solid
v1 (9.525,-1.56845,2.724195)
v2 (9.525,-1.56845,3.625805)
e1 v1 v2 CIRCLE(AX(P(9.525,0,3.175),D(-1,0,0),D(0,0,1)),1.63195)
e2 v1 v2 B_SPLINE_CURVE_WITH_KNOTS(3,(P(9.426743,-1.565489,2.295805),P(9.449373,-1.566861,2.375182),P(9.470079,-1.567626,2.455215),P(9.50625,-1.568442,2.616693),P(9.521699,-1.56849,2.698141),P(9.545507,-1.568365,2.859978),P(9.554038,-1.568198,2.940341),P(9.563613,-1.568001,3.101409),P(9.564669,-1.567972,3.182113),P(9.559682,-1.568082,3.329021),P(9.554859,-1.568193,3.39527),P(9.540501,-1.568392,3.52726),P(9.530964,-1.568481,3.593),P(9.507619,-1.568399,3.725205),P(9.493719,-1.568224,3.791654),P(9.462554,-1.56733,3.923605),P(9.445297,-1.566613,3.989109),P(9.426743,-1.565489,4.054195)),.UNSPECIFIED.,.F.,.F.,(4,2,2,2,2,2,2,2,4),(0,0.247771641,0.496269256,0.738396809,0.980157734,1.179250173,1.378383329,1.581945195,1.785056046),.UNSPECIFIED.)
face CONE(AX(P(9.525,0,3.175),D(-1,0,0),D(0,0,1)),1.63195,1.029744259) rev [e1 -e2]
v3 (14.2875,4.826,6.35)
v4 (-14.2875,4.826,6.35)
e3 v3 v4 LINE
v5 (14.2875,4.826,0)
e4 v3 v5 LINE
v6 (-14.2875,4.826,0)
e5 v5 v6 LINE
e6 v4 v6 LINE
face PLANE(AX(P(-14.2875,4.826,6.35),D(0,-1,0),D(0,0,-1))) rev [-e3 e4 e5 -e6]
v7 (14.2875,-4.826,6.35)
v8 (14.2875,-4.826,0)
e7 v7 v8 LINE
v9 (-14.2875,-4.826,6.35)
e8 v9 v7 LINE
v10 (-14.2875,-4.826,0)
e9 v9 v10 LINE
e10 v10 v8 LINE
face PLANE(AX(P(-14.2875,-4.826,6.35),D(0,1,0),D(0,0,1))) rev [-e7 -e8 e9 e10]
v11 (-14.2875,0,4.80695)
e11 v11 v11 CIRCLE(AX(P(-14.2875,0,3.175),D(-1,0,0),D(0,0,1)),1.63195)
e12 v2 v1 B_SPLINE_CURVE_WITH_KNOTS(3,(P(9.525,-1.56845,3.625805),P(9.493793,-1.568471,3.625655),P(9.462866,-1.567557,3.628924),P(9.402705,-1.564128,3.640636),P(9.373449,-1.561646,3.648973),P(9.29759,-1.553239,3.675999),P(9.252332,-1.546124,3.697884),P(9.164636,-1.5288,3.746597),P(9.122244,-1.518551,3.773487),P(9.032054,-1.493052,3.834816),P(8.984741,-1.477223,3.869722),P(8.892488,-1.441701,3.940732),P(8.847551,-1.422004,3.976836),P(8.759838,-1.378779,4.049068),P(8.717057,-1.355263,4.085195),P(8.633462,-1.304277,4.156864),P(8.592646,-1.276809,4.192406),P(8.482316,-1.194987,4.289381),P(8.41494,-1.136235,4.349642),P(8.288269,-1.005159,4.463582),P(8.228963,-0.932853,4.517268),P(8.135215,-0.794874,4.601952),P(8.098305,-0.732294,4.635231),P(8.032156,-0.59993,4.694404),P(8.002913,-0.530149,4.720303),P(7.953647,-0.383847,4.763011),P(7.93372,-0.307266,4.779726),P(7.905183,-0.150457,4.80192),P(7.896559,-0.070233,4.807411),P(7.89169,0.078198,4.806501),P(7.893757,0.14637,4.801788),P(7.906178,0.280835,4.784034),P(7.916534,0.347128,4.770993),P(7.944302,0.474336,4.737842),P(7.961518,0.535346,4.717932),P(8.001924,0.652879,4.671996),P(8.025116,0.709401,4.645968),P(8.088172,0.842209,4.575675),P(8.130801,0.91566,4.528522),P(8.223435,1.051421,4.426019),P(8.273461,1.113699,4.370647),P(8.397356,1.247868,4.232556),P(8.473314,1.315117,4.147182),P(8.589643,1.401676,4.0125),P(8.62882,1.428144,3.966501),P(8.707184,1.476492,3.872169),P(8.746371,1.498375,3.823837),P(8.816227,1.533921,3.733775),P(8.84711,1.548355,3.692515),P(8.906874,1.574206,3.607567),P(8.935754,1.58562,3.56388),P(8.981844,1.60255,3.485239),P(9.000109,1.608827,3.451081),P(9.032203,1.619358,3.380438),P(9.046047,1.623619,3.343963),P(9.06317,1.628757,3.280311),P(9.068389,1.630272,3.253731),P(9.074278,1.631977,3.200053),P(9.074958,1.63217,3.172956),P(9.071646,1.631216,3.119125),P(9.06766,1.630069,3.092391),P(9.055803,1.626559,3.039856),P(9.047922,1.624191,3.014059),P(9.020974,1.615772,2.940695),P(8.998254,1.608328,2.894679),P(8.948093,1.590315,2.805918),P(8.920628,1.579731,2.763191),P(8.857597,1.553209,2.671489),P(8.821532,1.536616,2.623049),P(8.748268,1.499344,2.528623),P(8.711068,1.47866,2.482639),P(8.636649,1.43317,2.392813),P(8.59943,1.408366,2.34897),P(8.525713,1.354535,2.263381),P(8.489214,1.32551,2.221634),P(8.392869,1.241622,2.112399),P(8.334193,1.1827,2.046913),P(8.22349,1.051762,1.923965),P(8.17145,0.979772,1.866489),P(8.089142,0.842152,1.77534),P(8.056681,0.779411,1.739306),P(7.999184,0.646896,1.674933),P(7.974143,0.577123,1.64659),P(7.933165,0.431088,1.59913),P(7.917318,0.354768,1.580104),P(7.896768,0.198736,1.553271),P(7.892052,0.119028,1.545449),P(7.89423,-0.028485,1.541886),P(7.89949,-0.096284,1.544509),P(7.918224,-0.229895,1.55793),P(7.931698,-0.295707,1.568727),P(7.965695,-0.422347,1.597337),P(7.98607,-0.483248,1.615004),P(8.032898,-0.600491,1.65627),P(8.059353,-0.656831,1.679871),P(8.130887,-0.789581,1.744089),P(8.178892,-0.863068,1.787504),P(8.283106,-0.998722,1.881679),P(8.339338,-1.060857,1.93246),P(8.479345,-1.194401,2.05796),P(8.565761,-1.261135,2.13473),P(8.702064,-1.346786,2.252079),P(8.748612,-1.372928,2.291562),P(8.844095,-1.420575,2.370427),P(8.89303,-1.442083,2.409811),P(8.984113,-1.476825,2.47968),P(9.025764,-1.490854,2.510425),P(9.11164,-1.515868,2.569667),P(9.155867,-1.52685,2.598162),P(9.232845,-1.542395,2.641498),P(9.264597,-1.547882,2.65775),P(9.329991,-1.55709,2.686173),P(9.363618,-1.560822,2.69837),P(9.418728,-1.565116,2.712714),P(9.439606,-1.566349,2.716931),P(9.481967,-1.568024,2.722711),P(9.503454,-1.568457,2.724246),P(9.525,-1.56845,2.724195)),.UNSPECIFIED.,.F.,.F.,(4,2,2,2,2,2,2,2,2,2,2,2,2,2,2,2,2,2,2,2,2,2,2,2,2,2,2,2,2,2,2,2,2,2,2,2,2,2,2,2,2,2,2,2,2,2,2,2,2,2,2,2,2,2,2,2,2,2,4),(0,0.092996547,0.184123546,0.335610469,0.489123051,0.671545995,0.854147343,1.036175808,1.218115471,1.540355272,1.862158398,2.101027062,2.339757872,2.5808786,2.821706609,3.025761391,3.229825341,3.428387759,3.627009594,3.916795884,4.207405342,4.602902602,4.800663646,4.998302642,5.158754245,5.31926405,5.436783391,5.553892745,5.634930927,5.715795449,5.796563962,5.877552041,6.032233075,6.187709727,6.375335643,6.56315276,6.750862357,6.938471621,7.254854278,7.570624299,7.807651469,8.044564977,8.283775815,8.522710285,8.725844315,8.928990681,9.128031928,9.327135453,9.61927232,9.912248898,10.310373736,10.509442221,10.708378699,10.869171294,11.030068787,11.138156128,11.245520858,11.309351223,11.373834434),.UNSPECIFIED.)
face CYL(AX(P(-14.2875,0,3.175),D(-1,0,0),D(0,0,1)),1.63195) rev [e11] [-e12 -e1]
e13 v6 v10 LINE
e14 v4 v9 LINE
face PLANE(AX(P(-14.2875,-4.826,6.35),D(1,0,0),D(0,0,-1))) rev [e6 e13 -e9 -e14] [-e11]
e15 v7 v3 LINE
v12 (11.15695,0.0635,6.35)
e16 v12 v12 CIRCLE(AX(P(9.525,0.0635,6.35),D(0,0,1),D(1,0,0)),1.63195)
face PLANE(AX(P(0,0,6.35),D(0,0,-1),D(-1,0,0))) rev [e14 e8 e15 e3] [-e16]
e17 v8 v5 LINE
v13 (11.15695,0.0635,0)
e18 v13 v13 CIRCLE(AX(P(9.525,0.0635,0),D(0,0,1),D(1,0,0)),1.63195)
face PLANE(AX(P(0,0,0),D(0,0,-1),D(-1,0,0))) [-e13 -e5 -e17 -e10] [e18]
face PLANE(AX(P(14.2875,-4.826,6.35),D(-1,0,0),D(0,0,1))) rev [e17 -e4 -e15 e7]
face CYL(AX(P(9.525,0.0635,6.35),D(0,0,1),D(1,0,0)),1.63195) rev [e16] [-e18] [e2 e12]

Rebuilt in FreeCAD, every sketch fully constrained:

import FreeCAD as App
import Part
import Sketcher
from FreeCAD import Vector
Q = App.Units.Quantity


def add_polygon(sketch, points):
    """Adds a closed chain of lines whose ends are joined by coincident constraints."""
    first, n = sketch.GeometryCount, len(points)
    for a, b in zip(points, points[1:] + points[:1]):
        sketch.addGeometry(Part.LineSegment(App.Vector(*a, 0), App.Vector(*b, 0)), False)
    for i in range(n):
        sketch.addConstraint(Sketcher.Constraint("Coincident", first + i, 2, first + (i + 1) % n, 1))

doc = App.newDocument("Part")
body = doc.addObject("PartDesign::Body", "Body")

# Sketch on XY plane
sketch1 = body.newObject("Sketcher::SketchObject", "Sketch")
sketch1.AttachmentSupport = (doc.getObject("XY_Plane"), [""])
sketch1.MapMode = "FlatFace"
add_polygon(sketch1, [(-14.2875, 4.826), (-14.2875, -4.826), (14.2875, -4.826), (14.2875, 4.826)])  # lines 0-3
sketch1.addConstraint([
    Sketcher.Constraint("Vertical", 0),
    Sketcher.Constraint("Horizontal", 1),
    Sketcher.Constraint("Vertical", 2),
    Sketcher.Constraint("Horizontal", 3),
    Sketcher.Constraint("Symmetric", 0, 2, 2, 2, -1, 1),
    Sketcher.Constraint("DistanceY", 0, 2, 0, 1, Q("0.38 in")),
    Sketcher.Constraint("DistanceX", 1, 1, 1, 2, Q("1.125 in")),
])
pad1 = body.newObject("PartDesign::Pad", "Pad")
pad1.Profile = sketch1
pad1.Length = Q("0.25 in")

# Sketch on XY plane
sketch2 = body.newObject("Sketcher::SketchObject", "Sketch001")
sketch2.AttachmentSupport = (doc.getObject("XY_Plane"), [""])
sketch2.MapMode = "FlatFace"
sketch2.AttachmentOffset = App.Placement(Vector(0, 0, 0.25 * 25.4), App.Rotation())
sketch2.addGeometry(Part.Circle(Vector(9.525, 0.0635, 0), Vector(0, 0, 1), 1.63195), False)
sketch2.addConstraint([
    Sketcher.Constraint("Diameter", 0, Q("0.1285 in")),
    Sketcher.Constraint("DistanceX", -1, 1, 0, 3, Q("0.375 in")),
    Sketcher.Constraint("DistanceY", -1, 1, 0, 3, Q("0.0025 in")),
])
doc.recompute()
hole = body.newObject("PartDesign::Hole", "Hole")
hole.Profile = sketch2
hole.ThreadType = "None"
hole.Diameter = Q("0.1285 in")
hole.DepthType = "ThroughAll"

# Sketch on YZ plane
sketch3 = body.newObject("Sketcher::SketchObject", "Sketch002")
sketch3.AttachmentSupport = (doc.getObject("YZ_Plane"), [""])
sketch3.MapMode = "FlatFace"
sketch3.AttachmentOffset = App.Placement(Vector(0, 0, -0.5625 * 25.4), App.Rotation())
sketch3.addGeometry(Part.Circle(Vector(0, 3.175, 0), Vector(0, 0, 1), 1.63195), False)
sketch3.addConstraint([
    Sketcher.Constraint("PointOnObject", 0, 3, -2),
    Sketcher.Constraint("Diameter", 0, Q("0.1285 in")),
    Sketcher.Constraint("DistanceY", -1, 1, 0, 3, Q("0.125 in")),
])
doc.recompute()
hole2 = body.newObject("PartDesign::Hole", "Hole001")
hole2.Profile = sketch3
hole2.ThreadType = "None"
hole2.Diameter = Q("0.1285 in")
hole2.DepthType = "Dimension"
hole2.Depth = 23.8115
hole2.DrillPoint = "Angled"
hole2.DrillPointAngle = 118
hole2.Reversed = True

doc.recompute()
